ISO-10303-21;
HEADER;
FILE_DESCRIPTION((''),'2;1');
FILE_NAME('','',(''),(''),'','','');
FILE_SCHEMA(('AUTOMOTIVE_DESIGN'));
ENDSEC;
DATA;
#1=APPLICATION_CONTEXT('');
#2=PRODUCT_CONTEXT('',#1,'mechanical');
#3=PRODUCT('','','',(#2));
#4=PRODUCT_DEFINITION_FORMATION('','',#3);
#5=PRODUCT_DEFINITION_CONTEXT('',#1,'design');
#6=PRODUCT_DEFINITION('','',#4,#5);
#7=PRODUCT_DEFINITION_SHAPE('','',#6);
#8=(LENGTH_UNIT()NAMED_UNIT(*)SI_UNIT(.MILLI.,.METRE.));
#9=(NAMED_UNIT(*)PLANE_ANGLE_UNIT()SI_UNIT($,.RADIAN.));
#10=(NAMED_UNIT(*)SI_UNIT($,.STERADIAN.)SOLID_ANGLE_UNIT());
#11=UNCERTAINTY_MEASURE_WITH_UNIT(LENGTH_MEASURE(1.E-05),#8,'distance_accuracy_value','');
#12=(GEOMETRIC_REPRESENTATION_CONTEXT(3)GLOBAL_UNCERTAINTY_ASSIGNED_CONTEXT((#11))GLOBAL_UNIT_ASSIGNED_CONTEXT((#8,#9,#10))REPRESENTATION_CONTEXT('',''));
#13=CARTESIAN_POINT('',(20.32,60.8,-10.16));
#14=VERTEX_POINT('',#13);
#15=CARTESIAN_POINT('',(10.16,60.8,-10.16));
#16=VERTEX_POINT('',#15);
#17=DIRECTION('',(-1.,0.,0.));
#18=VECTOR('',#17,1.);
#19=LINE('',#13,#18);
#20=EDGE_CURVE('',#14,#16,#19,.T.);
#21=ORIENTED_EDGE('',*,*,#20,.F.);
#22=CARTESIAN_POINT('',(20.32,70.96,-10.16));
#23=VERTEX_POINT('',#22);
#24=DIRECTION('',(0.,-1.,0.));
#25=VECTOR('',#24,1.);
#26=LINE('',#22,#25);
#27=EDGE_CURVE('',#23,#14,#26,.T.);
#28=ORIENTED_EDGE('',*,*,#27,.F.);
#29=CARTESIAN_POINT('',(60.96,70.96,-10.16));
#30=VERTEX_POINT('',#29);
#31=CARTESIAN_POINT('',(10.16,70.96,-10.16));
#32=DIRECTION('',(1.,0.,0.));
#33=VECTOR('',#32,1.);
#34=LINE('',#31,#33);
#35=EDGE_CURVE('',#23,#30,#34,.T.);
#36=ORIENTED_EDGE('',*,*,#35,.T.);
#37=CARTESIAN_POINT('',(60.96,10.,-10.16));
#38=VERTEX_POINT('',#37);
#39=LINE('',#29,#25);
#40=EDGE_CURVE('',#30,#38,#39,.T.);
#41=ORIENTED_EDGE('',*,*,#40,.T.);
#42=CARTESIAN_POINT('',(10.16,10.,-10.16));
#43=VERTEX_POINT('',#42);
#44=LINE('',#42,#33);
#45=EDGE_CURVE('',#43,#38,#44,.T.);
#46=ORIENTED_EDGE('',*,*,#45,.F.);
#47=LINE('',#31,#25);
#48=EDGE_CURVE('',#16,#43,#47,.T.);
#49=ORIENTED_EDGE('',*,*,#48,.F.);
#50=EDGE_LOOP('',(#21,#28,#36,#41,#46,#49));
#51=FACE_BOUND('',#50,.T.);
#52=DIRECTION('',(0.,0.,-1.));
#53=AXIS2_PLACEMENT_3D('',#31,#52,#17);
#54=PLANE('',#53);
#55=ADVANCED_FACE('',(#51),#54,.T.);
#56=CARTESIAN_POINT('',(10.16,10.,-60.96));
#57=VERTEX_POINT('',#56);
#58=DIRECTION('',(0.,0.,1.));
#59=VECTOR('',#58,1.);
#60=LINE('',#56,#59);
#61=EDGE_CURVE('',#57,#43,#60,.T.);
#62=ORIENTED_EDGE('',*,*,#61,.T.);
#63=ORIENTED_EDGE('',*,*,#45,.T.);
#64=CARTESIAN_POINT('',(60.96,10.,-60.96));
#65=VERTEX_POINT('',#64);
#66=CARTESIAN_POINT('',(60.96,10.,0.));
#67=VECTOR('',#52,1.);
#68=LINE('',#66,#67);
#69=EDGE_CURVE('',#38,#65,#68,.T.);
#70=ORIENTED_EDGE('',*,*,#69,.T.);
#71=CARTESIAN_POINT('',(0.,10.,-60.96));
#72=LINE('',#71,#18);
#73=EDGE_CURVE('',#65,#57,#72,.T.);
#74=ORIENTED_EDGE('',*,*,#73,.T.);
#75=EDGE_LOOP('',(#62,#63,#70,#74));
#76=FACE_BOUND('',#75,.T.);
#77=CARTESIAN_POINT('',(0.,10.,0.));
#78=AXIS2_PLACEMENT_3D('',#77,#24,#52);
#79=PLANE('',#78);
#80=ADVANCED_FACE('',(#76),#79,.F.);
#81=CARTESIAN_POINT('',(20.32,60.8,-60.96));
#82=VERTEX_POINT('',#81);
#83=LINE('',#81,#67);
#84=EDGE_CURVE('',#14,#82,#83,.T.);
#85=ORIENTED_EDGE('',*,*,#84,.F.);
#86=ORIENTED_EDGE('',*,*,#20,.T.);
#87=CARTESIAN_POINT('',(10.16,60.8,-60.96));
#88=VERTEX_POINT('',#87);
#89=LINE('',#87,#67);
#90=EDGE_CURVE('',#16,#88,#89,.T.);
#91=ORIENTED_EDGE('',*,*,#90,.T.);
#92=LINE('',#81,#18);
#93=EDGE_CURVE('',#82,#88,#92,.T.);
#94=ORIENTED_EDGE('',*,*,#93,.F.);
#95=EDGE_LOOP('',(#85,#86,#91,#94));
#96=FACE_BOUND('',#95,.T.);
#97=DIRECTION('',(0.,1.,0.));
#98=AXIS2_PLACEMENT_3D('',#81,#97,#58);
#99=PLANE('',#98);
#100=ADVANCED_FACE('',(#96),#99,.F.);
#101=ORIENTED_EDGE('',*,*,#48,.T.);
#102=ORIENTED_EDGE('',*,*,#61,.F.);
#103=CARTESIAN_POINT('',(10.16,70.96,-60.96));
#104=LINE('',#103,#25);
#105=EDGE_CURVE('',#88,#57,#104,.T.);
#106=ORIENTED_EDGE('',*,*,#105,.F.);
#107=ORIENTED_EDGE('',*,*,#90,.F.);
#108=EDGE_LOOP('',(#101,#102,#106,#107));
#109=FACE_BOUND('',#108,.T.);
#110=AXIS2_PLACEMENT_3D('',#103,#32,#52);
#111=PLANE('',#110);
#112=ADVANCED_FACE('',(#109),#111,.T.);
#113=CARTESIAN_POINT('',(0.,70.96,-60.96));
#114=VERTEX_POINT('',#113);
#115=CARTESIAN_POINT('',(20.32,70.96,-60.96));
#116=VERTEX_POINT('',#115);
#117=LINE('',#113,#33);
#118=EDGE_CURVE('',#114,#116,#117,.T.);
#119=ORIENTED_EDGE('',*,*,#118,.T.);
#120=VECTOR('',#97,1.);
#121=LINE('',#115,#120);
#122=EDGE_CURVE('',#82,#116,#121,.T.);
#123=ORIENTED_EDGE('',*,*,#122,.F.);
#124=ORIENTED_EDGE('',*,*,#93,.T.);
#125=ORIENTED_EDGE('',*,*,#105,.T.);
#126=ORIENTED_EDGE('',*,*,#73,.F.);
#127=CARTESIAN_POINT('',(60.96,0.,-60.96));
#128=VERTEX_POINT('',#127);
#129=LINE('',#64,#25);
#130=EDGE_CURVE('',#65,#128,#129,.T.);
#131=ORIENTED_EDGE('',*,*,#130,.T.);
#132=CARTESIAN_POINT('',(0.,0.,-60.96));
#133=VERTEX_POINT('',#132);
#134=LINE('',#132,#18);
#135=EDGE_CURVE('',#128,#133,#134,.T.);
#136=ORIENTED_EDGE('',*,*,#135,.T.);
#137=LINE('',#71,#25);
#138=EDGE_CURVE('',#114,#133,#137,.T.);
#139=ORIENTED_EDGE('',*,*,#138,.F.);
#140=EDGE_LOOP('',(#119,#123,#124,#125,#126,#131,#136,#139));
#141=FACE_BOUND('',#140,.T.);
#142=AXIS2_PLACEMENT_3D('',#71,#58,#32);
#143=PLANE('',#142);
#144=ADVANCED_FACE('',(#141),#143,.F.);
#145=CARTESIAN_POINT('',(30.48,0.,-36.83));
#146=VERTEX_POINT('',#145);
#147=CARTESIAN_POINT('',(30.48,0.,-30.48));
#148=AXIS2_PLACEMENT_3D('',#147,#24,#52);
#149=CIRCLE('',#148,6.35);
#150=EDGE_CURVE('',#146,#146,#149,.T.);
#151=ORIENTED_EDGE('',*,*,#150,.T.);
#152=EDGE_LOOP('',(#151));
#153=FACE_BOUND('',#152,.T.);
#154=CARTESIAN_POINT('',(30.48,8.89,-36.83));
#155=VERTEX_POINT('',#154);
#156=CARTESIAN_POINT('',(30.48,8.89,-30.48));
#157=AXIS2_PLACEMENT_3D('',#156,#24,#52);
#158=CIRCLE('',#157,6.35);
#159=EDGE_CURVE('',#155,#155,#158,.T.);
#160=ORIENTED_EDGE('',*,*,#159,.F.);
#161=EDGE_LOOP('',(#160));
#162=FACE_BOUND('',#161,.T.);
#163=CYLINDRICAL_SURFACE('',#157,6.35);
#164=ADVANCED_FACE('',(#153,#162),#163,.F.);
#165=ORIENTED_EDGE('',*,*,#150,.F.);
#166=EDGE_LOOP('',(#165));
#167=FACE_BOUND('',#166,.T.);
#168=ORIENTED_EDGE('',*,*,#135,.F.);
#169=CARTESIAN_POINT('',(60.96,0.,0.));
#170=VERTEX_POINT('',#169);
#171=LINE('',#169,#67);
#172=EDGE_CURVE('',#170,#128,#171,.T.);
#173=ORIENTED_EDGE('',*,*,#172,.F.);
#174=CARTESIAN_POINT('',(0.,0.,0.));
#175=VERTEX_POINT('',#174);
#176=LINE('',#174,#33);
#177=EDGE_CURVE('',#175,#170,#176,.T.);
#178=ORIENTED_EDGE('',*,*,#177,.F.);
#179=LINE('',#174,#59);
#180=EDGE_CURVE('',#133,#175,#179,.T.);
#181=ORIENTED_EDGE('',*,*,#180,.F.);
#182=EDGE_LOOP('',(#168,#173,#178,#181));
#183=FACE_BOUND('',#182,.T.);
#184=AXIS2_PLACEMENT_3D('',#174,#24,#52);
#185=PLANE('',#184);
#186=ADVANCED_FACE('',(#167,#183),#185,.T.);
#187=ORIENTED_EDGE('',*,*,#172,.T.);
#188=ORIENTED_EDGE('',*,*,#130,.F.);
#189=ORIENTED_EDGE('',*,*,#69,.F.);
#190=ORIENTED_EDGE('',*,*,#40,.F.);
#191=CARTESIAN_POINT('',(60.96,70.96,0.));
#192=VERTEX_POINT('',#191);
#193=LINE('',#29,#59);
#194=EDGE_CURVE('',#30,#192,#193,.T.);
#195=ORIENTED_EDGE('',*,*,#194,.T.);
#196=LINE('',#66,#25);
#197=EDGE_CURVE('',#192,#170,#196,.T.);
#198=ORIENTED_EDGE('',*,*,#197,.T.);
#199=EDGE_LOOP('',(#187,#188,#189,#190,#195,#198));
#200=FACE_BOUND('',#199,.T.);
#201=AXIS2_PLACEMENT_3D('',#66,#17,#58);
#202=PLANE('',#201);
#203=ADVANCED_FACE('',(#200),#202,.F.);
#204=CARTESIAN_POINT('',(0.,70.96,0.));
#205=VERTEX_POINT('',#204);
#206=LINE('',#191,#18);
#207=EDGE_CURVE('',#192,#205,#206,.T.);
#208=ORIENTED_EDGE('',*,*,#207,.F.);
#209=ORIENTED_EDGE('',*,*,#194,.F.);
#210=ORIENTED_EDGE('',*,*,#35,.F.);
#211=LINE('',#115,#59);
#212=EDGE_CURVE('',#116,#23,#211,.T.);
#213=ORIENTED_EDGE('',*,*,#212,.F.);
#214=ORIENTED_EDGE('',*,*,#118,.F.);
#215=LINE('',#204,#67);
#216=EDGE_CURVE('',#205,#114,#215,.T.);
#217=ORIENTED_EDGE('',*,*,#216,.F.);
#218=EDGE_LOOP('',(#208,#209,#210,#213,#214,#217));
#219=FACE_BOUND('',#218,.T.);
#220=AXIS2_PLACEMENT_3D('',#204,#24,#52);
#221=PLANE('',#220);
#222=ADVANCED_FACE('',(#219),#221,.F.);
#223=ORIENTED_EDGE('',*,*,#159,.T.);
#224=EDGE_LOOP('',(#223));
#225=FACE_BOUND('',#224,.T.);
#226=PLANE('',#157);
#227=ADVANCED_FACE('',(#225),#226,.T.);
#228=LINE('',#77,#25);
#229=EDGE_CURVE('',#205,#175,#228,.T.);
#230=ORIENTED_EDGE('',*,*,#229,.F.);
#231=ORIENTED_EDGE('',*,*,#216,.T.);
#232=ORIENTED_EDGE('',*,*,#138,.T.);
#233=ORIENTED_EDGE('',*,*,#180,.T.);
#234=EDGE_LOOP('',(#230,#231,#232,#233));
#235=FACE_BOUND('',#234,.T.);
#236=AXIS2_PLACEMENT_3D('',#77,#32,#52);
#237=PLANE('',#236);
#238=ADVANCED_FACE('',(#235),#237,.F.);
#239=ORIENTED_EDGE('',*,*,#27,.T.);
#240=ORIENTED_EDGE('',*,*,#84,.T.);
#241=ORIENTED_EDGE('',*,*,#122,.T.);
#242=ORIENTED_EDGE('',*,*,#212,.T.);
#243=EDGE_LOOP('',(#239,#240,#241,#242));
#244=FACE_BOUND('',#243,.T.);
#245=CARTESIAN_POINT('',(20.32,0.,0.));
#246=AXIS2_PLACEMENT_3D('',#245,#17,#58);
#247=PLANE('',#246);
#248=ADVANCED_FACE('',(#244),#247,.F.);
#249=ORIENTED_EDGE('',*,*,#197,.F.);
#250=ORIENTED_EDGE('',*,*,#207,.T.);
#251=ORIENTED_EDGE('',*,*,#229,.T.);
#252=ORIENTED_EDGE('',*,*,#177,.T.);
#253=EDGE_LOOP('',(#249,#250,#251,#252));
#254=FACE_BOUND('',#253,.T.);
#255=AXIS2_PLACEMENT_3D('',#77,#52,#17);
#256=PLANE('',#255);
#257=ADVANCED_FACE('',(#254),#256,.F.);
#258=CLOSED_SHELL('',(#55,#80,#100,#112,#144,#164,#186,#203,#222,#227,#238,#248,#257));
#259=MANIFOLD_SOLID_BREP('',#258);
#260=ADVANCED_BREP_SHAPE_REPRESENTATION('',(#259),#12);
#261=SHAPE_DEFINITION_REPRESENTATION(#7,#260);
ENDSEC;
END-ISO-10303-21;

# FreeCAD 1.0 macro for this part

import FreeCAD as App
import Part
import Sketcher
from FreeCAD import Vector
Q = App.Units.Quantity

doc = App.newDocument("Part")
body = doc.addObject("PartDesign::Body", "Body")

sketch1 = body.newObject("Sketcher::SketchObject", "Sketch")
sketch1.AttachmentSupport = (doc.getObject("XZ_Plane"), [""])
sketch1.MapMode = "FlatFace"
sketch1.addGeometry([
    Part.LineSegment(Vector(0, -60.96, 0), Vector(0, 0, 0)),
    Part.LineSegment(Vector(0, 0, 0), Vector(60.96, 0, 0)),
    Part.LineSegment(Vector(60.96, 0, 0), Vector(60.96, -60.96, 0)),
    Part.LineSegment(Vector(60.96, -60.96, 0), Vector(0, -60.96, 0)),
], False)
sketch1.addConstraint([
    Sketcher.Constraint("Coincident", 0, 2, 1, 1),
    Sketcher.Constraint("Coincident", 1, 2, 2, 1),
    Sketcher.Constraint("Coincident", 2, 2, 3, 1),
    Sketcher.Constraint("Coincident", 3, 2, 0, 1),
    Sketcher.Constraint("Vertical", 0),
    Sketcher.Constraint("Horizontal", 1),
    Sketcher.Constraint("Vertical", 2),
    Sketcher.Constraint("Horizontal", 3),
    Sketcher.Constraint("Coincident", 0, 2, -1, 1),
    Sketcher.Constraint("Equal", 3, 0),
    Sketcher.Constraint("DistanceX", 1, 1, 1, 2, Q("2.4 in")),
])
pad1 = body.newObject("PartDesign::Pad", "Pad")
pad1.Profile = sketch1
pad1.Length = 10
pad1.Reversed = True

sketch2 = body.newObject("Sketcher::SketchObject", "Sketch001")
sketch2.AttachmentSupport = (doc.getObject("XZ_Plane"), [""])
sketch2.MapMode = "FlatFace"
sketch2.AttachmentOffset = App.Placement(Vector(0, 0, -10), App.Rotation())
sketch2.addGeometry([
    Part.LineSegment(Vector(10.16, -60.96, 0), Vector(0, -60.96, 0)),
    Part.LineSegment(Vector(0, -60.96, 0), Vector(0, 0, 0)),
    Part.LineSegment(Vector(0, 0, 0), Vector(60.96, 0, 0)),
    Part.LineSegment(Vector(60.96, 0, 0), Vector(60.96, -10.16, 0)),
    Part.LineSegment(Vector(60.96, -10.16, 0), Vector(10.16, -10.16, 0)),
    Part.LineSegment(Vector(10.16, -10.16, 0), Vector(10.16, -60.96, 0)),
], False)
sketch2.addConstraint([
    Sketcher.Constraint("Coincident", 0, 2, 1, 1),
    Sketcher.Constraint("Coincident", 1, 2, 2, 1),
    Sketcher.Constraint("Coincident", 2, 2, 3, 1),
    Sketcher.Constraint("Coincident", 3, 2, 4, 1),
    Sketcher.Constraint("Coincident", 4, 2, 5, 1),
    Sketcher.Constraint("Coincident", 5, 2, 0, 1),
    Sketcher.Constraint("Horizontal", 0),
    Sketcher.Constraint("Vertical", 1),
    Sketcher.Constraint("Horizontal", 2),
    Sketcher.Constraint("Vertical", 3),
    Sketcher.Constraint("Horizontal", 4),
    Sketcher.Constraint("Vertical", 5),
    Sketcher.Constraint("Coincident", 1, 2, -1, 1),
    Sketcher.Constraint("Equal", 2, 1),
    Sketcher.Constraint("Equal", 0, 3),
    Sketcher.Constraint("DistanceX", 4, 2, 4, 1, Q("2 in")),
    Sketcher.Constraint("DistanceX", 0, 2, 0, 1, Q("0.4 in")),
])
pad2 = body.newObject("PartDesign::Pad", "Pad001")
pad2.Profile = sketch2
pad2.Length = Q("2.4 in")
pad2.Reversed = True

sketch3 = body.newObject("Sketcher::SketchObject", "Sketch002")
sketch3.AttachmentSupport = (doc.getObject("YZ_Plane"), [""])
sketch3.MapMode = "FlatFace"
sketch3.AttachmentOffset = App.Placement(Vector(0, 0, 0.4 * 25.4), App.Rotation())
sketch3.addGeometry([
    Part.LineSegment(Vector(70.96, -10.16, 0), Vector(60.8, -10.16, 0)),
    Part.LineSegment(Vector(60.8, -10.16, 0), Vector(60.8, -60.96, 0)),
    Part.LineSegment(Vector(60.8, -60.96, 0), Vector(70.96, -60.96, 0)),
    Part.LineSegment(Vector(70.96, -60.96, 0), Vector(70.96, -10.16, 0)),
], False)
sketch3.addConstraint([
    Sketcher.Constraint("Coincident", 0, 2, 1, 1),
    Sketcher.Constraint("Coincident", 1, 2, 2, 1),
    Sketcher.Constraint("Coincident", 2, 2, 3, 1),
    Sketcher.Constraint("Coincident", 3, 2, 0, 1),
    Sketcher.Constraint("Horizontal", 0),
    Sketcher.Constraint("Vertical", 1),
    Sketcher.Constraint("Horizontal", 2),
    Sketcher.Constraint("Vertical", 3),
    Sketcher.Constraint("DistanceY", 1, 2, 1, 1, Q("2 in")),
    Sketcher.Constraint("DistanceX", 0, 2, 0, 1, Q("0.4 in")),
    Sketcher.Constraint("DistanceY", 0, 2, -1, 1, Q("0.4 in")),
    Sketcher.Constraint("DistanceX", -1, 1, 0, 2, 60.8),
])
pad3 = body.newObject("PartDesign::Pad", "Pad002")
pad3.Profile = sketch3
pad3.Length = Q("0.4 in")

sketch4 = body.newObject("Sketcher::SketchObject", "Sketch003")
sketch4.AttachmentSupport = (doc.getObject("XZ_Plane"), [""])
sketch4.MapMode = "FlatFace"
sketch4.addGeometry(Part.Circle(Vector(30.48, -30.48, 0), Vector(0, 0, 1), 6.35), False)
sketch4.addConstraint([
    Sketcher.Constraint("Diameter", 0, Q("0.5 in")),
    Sketcher.Constraint("DistanceX", -1, 1, 0, 3, Q("1.2 in")),
    Sketcher.Constraint("DistanceY", 0, 3, -1, 1, Q("1.2 in")),
])
pocket1 = body.newObject("PartDesign::Pocket", "Pocket")
pocket1.Profile = sketch4
pocket1.Length = Q("0.35 in")

doc.recompute()
